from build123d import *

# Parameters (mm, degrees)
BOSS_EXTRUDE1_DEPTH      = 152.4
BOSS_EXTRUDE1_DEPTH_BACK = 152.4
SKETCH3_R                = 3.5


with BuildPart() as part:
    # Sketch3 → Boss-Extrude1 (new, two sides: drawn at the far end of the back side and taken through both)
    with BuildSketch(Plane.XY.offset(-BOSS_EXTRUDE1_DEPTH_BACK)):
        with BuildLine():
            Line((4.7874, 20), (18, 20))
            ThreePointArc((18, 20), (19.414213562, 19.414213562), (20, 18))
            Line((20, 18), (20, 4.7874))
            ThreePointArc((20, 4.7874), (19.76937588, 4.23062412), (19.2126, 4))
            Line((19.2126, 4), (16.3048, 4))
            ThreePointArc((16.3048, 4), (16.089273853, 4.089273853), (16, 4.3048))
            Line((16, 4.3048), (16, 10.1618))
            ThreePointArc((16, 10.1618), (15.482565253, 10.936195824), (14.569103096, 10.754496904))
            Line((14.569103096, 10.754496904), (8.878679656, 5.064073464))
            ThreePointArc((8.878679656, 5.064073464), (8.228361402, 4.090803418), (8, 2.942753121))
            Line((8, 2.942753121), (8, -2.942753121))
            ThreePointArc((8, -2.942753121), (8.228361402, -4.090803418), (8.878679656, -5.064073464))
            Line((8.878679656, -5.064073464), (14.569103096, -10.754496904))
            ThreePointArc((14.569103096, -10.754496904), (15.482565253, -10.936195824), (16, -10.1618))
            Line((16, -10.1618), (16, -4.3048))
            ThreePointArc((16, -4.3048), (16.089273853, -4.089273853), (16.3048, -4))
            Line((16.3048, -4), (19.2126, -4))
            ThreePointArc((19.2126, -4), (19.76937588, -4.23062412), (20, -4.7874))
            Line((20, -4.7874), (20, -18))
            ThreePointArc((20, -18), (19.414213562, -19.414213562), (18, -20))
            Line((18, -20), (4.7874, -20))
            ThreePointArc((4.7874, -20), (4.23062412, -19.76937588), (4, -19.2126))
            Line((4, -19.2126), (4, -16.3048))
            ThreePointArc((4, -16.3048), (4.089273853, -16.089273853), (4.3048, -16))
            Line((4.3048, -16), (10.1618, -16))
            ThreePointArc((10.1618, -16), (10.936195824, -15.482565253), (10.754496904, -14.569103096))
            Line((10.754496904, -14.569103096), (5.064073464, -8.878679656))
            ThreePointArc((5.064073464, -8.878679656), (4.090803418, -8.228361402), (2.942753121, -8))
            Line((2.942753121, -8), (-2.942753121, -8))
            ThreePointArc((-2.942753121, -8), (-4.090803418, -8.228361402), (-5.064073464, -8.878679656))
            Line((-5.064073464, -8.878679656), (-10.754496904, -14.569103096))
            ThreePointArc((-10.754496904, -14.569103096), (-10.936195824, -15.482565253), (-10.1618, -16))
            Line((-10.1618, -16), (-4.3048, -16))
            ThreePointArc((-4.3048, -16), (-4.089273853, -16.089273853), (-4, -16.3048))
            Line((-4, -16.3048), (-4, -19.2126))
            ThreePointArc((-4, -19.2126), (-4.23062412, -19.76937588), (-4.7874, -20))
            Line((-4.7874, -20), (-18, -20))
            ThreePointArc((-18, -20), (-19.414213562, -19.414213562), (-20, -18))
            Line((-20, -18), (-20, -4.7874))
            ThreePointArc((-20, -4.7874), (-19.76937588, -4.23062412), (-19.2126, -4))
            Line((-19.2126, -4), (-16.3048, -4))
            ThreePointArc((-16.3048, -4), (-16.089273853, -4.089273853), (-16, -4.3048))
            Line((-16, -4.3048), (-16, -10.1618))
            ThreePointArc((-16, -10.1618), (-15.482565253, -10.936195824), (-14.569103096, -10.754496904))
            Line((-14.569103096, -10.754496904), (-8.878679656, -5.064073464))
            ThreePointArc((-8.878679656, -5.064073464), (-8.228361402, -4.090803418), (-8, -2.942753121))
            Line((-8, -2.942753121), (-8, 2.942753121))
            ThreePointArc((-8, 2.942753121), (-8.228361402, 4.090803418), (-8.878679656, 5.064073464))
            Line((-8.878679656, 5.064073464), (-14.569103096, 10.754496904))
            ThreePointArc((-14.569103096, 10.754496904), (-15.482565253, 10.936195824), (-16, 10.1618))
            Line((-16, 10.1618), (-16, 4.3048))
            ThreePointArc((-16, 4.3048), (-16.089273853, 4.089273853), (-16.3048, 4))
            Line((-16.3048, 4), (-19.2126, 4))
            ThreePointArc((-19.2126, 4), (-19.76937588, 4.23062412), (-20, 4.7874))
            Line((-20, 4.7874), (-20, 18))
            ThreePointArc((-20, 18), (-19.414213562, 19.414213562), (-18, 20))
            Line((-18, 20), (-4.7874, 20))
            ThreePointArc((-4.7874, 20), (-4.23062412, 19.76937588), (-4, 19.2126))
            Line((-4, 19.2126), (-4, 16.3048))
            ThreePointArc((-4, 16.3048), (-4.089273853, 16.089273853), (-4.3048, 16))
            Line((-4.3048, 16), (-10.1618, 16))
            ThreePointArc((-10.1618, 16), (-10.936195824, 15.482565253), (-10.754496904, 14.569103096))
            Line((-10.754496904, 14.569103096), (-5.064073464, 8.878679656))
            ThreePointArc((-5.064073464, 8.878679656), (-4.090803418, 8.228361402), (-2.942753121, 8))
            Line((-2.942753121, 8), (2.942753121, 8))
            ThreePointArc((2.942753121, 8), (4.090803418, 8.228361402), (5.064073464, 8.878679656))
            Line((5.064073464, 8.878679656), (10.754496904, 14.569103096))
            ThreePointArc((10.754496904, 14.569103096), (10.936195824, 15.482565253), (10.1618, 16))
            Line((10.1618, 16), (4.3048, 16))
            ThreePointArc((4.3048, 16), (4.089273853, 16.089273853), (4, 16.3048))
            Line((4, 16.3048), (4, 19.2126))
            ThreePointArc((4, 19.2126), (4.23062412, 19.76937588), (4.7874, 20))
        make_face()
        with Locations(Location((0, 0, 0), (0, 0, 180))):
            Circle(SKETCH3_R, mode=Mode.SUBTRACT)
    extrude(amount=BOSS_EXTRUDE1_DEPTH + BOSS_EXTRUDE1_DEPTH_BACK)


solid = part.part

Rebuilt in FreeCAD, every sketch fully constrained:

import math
import FreeCAD as App
import Part
import Sketcher

V = App.Vector
Q = App.Units.Quantity

doc = App.newDocument("Part")
body = doc.addObject("PartDesign::Body", "Body")

# Sketch on XY plane
sketch1 = body.newObject("Sketcher::SketchObject", "Sketch")
sketch1.AttachmentSupport = (doc.getObject("XY_Plane"), [""])
sketch1.MapMode = "FlatFace"
sketch1.addGeometry([
    Part.LineSegment(V(18, 20, 0), V(4.7874, 20, 0)),  # 0
    Part.ArcOfCircle(Part.Circle(V(4.7874, 19.2126, 0), V(0, 0, 1), 0.7874), math.radians(90), math.radians(180)),  # 1
    Part.LineSegment(V(4, 19.2126, 0), V(4, 16.3048, 0)),  # 2
    Part.ArcOfCircle(Part.Circle(V(4.3048, 16.3048, 0), V(0, 0, 1), 0.3048), math.radians(180), math.radians(270)),  # 3
    Part.LineSegment(V(4.3048, 16, 0), V(10.1618, 16, 0)),  # 4
    Part.ArcOfCircle(Part.Circle(V(10.1618, 15.1618, 0), V(0, 0, 1), 0.8382), math.radians(-45), math.radians(90)),  # 5
    Part.LineSegment(V(10.754497, 14.569103, 0), V(5.064073, 8.87868, 0)),  # 6
    Part.ArcOfCircle(Part.Circle(V(2.942753, 11, 0), V(0, 0, 1), 3), math.radians(-90), math.radians(-45)),  # 7
    Part.LineSegment(V(2.942753, 8, 0), V(-2.942753, 8, 0)),  # 8
    Part.ArcOfCircle(Part.Circle(V(-2.942753, 11, 0), V(0, 0, 1), 3), math.radians(-135), math.radians(-90)),  # 9
    Part.LineSegment(V(-5.064073, 8.87868, 0), V(-10.754497, 14.569103, 0)),  # 10
    Part.ArcOfCircle(Part.Circle(V(-10.1618, 15.1618, 0), V(0, 0, 1), 0.8382), math.radians(90), math.radians(225)),  # 11
    Part.LineSegment(V(-10.1618, 16, 0), V(-4.3048, 16, 0)),  # 12
    Part.ArcOfCircle(Part.Circle(V(-4.3048, 16.3048, 0), V(0, 0, 1), 0.3048), math.radians(-90), math.radians(0)),  # 13
    Part.LineSegment(V(-4, 16.3048, 0), V(-4, 19.2126, 0)),  # 14
    Part.ArcOfCircle(Part.Circle(V(-4.7874, 19.2126, 0), V(0, 0, 1), 0.7874), math.radians(0), math.radians(90)),  # 15
    Part.LineSegment(V(-4.7874, 20, 0), V(-18, 20, 0)),  # 16
    Part.ArcOfCircle(Part.Circle(V(-18, 18, 0), V(0, 0, 1), 2), math.radians(90), math.radians(180)),  # 17
    Part.LineSegment(V(-20, 18, 0), V(-20, 4.7874, 0)),  # 18
    Part.ArcOfCircle(Part.Circle(V(-19.2126, 4.7874, 0), V(0, 0, 1), 0.7874), math.radians(180), math.radians(270)),  # 19
    Part.LineSegment(V(-19.2126, 4, 0), V(-16.3048, 4, 0)),  # 20
    Part.ArcOfCircle(Part.Circle(V(-16.3048, 4.3048, 0), V(0, 0, 1), 0.3048), math.radians(-90), math.radians(0)),  # 21
    Part.LineSegment(V(-16, 4.3048, 0), V(-16, 10.1618, 0)),  # 22
    Part.ArcOfCircle(Part.Circle(V(-15.1618, 10.1618, 0), V(0, 0, 1), 0.8382), math.radians(45), math.radians(180)),  # 23
    Part.LineSegment(V(-14.569103, 10.754497, 0), V(-8.87868, 5.064073, 0)),  # 24
    Part.ArcOfCircle(Part.Circle(V(-11, 2.942753, 0), V(0, 0, 1), 3), math.radians(0), math.radians(45)),  # 25
    Part.LineSegment(V(-8, 2.942753, 0), V(-8, -2.942753, 0)),  # 26
    Part.ArcOfCircle(Part.Circle(V(-11, -2.942753, 0), V(0, 0, 1), 3), math.radians(-45), math.radians(0)),  # 27
    Part.LineSegment(V(-8.87868, -5.064073, 0), V(-14.569103, -10.754497, 0)),  # 28
    Part.ArcOfCircle(Part.Circle(V(-15.1618, -10.1618, 0), V(0, 0, 1), 0.8382), math.radians(180), math.radians(315)),  # 29
    Part.LineSegment(V(-16, -10.1618, 0), V(-16, -4.3048, 0)),  # 30
    Part.ArcOfCircle(Part.Circle(V(-16.3048, -4.3048, 0), V(0, 0, 1), 0.3048), math.radians(0), math.radians(90)),  # 31
    Part.LineSegment(V(-16.3048, -4, 0), V(-19.2126, -4, 0)),  # 32
    Part.ArcOfCircle(Part.Circle(V(-19.2126, -4.7874, 0), V(0, 0, 1), 0.7874), math.radians(90), math.radians(180)),  # 33
    Part.LineSegment(V(-20, -4.7874, 0), V(-20, -18, 0)),  # 34
    Part.ArcOfCircle(Part.Circle(V(-18, -18, 0), V(0, 0, 1), 2), math.radians(-180), math.radians(-90)),  # 35
    Part.LineSegment(V(-18, -20, 0), V(-4.7874, -20, 0)),  # 36
    Part.ArcOfCircle(Part.Circle(V(-4.7874, -19.2126, 0), V(0, 0, 1), 0.7874), math.radians(-90), math.radians(0)),  # 37
    Part.LineSegment(V(-4, -19.2126, 0), V(-4, -16.3048, 0)),  # 38
    Part.ArcOfCircle(Part.Circle(V(-4.3048, -16.3048, 0), V(0, 0, 1), 0.3048), math.radians(0), math.radians(90)),  # 39
    Part.LineSegment(V(-4.3048, -16, 0), V(-10.1618, -16, 0)),  # 40
    Part.ArcOfCircle(Part.Circle(V(-10.1618, -15.1618, 0), V(0, 0, 1), 0.8382), math.radians(135), math.radians(270)),  # 41
    Part.LineSegment(V(-10.754497, -14.569103, 0), V(-5.064073, -8.87868, 0)),  # 42
    Part.ArcOfCircle(Part.Circle(V(-2.942753, -11, 0), V(0, 0, 1), 3), math.radians(90), math.radians(135)),  # 43
    Part.LineSegment(V(-2.942753, -8, 0), V(2.942753, -8, 0)),  # 44
    Part.ArcOfCircle(Part.Circle(V(2.942753, -11, 0), V(0, 0, 1), 3), math.radians(45), math.radians(90)),  # 45
    Part.LineSegment(V(5.064073, -8.87868, 0), V(10.754497, -14.569103, 0)),  # 46
    Part.ArcOfCircle(Part.Circle(V(10.1618, -15.1618, 0), V(0, 0, 1), 0.8382), math.radians(-90), math.radians(45)),  # 47
    Part.LineSegment(V(10.1618, -16, 0), V(4.3048, -16, 0)),  # 48
    Part.ArcOfCircle(Part.Circle(V(4.3048, -16.3048, 0), V(0, 0, 1), 0.3048), math.radians(90), math.radians(180)),  # 49
    Part.LineSegment(V(4, -16.3048, 0), V(4, -19.2126, 0)),  # 50
    Part.ArcOfCircle(Part.Circle(V(4.7874, -19.2126, 0), V(0, 0, 1), 0.7874), math.radians(180), math.radians(270)),  # 51
    Part.LineSegment(V(4.7874, -20, 0), V(18, -20, 0)),  # 52
    Part.ArcOfCircle(Part.Circle(V(18, -18, 0), V(0, 0, 1), 2), math.radians(-90), math.radians(0)),  # 53
    Part.LineSegment(V(20, -18, 0), V(20, -4.7874, 0)),  # 54
    Part.ArcOfCircle(Part.Circle(V(19.2126, -4.7874, 0), V(0, 0, 1), 0.7874), math.radians(0), math.radians(90)),  # 55
    Part.LineSegment(V(19.2126, -4, 0), V(16.3048, -4, 0)),  # 56
    Part.ArcOfCircle(Part.Circle(V(16.3048, -4.3048, 0), V(0, 0, 1), 0.3048), math.radians(90), math.radians(180)),  # 57
    Part.LineSegment(V(16, -4.3048, 0), V(16, -10.1618, 0)),  # 58
    Part.ArcOfCircle(Part.Circle(V(15.1618, -10.1618, 0), V(0, 0, 1), 0.8382), math.radians(-135), math.radians(0)),  # 59
    Part.LineSegment(V(14.569103, -10.754497, 0), V(8.87868, -5.064073, 0)),  # 60
    Part.ArcOfCircle(Part.Circle(V(11, -2.942753, 0), V(0, 0, 1), 3), math.radians(180), math.radians(225)),  # 61
    Part.LineSegment(V(8, -2.942753, 0), V(8, 2.942753, 0)),  # 62
    Part.ArcOfCircle(Part.Circle(V(11, 2.942753, 0), V(0, 0, 1), 3), math.radians(135), math.radians(180)),  # 63
    Part.LineSegment(V(8.87868, 5.064073, 0), V(14.569103, 10.754497, 0)),  # 64
    Part.ArcOfCircle(Part.Circle(V(15.1618, 10.1618, 0), V(0, 0, 1), 0.8382), math.radians(0), math.radians(135)),  # 65
    Part.LineSegment(V(16, 10.1618, 0), V(16, 4.3048, 0)),  # 66
    Part.ArcOfCircle(Part.Circle(V(16.3048, 4.3048, 0), V(0, 0, 1), 0.3048), math.radians(180), math.radians(270)),  # 67
    Part.LineSegment(V(16.3048, 4, 0), V(19.2126, 4, 0)),  # 68
    Part.ArcOfCircle(Part.Circle(V(19.2126, 4.7874, 0), V(0, 0, 1), 0.7874), math.radians(-90), math.radians(0)),  # 69
    Part.LineSegment(V(20, 4.7874, 0), V(20, 18, 0)),  # 70
    Part.ArcOfCircle(Part.Circle(V(18, 18, 0), V(0, 0, 1), 2), math.radians(0), math.radians(90)),  # 71
    Part.Circle(V(0, 0, 0), V(0, 0, 1), 3.5),  # 72
], False)
sketch1.addConstraint([
    Sketcher.Constraint("Tangent", 0, 2, 1, 1),
    Sketcher.Constraint("Tangent", 1, 2, 2, 1),
    Sketcher.Constraint("Tangent", 2, 2, 3, 1),
    Sketcher.Constraint("Tangent", 3, 2, 4, 1),
    Sketcher.Constraint("Tangent", 4, 2, 5, 2),
    Sketcher.Constraint("Tangent", 5, 1, 6, 1),
    Sketcher.Constraint("Tangent", 6, 2, 7, 2),
    Sketcher.Constraint("Tangent", 7, 1, 8, 1),
    Sketcher.Constraint("Tangent", 8, 2, 9, 2),
    Sketcher.Constraint("Tangent", 9, 1, 10, 1),
    Sketcher.Constraint("Tangent", 10, 2, 11, 2),
    Sketcher.Constraint("Tangent", 11, 1, 12, 1),
    Sketcher.Constraint("Tangent", 12, 2, 13, 1),
    Sketcher.Constraint("Tangent", 13, 2, 14, 1),
    Sketcher.Constraint("Tangent", 14, 2, 15, 1),
    Sketcher.Constraint("Tangent", 15, 2, 16, 1),
    Sketcher.Constraint("Tangent", 16, 2, 17, 1),
    Sketcher.Constraint("Tangent", 17, 2, 18, 1),
    Sketcher.Constraint("Tangent", 18, 2, 19, 1),
    Sketcher.Constraint("Tangent", 19, 2, 20, 1),
    Sketcher.Constraint("Tangent", 20, 2, 21, 1),
    Sketcher.Constraint("Tangent", 21, 2, 22, 1),
    Sketcher.Constraint("Tangent", 22, 2, 23, 2),
    Sketcher.Constraint("Tangent", 23, 1, 24, 1),
    Sketcher.Constraint("Tangent", 24, 2, 25, 2),
    Sketcher.Constraint("Tangent", 25, 1, 26, 1),
    Sketcher.Constraint("Tangent", 26, 2, 27, 2),
    Sketcher.Constraint("Tangent", 27, 1, 28, 1),
    Sketcher.Constraint("Tangent", 28, 2, 29, 2),
    Sketcher.Constraint("Tangent", 29, 1, 30, 1),
    Sketcher.Constraint("Tangent", 30, 2, 31, 1),
    Sketcher.Constraint("Tangent", 31, 2, 32, 1),
    Sketcher.Constraint("Tangent", 32, 2, 33, 1),
    Sketcher.Constraint("Tangent", 33, 2, 34, 1),
    Sketcher.Constraint("Tangent", 34, 2, 35, 1),
    Sketcher.Constraint("Tangent", 35, 2, 36, 1),
    Sketcher.Constraint("Tangent", 36, 2, 37, 1),
    Sketcher.Constraint("Tangent", 37, 2, 38, 1),
    Sketcher.Constraint("Tangent", 38, 2, 39, 1),
    Sketcher.Constraint("Tangent", 39, 2, 40, 1),
    Sketcher.Constraint("Tangent", 40, 2, 41, 2),
    Sketcher.Constraint("Tangent", 41, 1, 42, 1),
    Sketcher.Constraint("Tangent", 42, 2, 43, 2),
    Sketcher.Constraint("Tangent", 43, 1, 44, 1),
    Sketcher.Constraint("Tangent", 44, 2, 45, 2),
    Sketcher.Constraint("Tangent", 45, 1, 46, 1),
    Sketcher.Constraint("Tangent", 46, 2, 47, 2),
    Sketcher.Constraint("Tangent", 47, 1, 48, 1),
    Sketcher.Constraint("Tangent", 48, 2, 49, 1),
    Sketcher.Constraint("Tangent", 49, 2, 50, 1),
    Sketcher.Constraint("Tangent", 50, 2, 51, 1),
    Sketcher.Constraint("Tangent", 51, 2, 52, 1),
    Sketcher.Constraint("Tangent", 52, 2, 53, 1),
    Sketcher.Constraint("Tangent", 53, 2, 54, 1),
    Sketcher.Constraint("Tangent", 54, 2, 55, 1),
    Sketcher.Constraint("Tangent", 55, 2, 56, 1),
    Sketcher.Constraint("Tangent", 56, 2, 57, 1),
    Sketcher.Constraint("Tangent", 57, 2, 58, 1),
    Sketcher.Constraint("Tangent", 58, 2, 59, 2),
    Sketcher.Constraint("Tangent", 59, 1, 60, 1),
    Sketcher.Constraint("Tangent", 60, 2, 61, 2),
    Sketcher.Constraint("Tangent", 61, 1, 62, 1),
    Sketcher.Constraint("Tangent", 62, 2, 63, 2),
    Sketcher.Constraint("Tangent", 63, 1, 64, 1),
    Sketcher.Constraint("Tangent", 64, 2, 65, 2),
    Sketcher.Constraint("Tangent", 65, 1, 66, 1),
    Sketcher.Constraint("Tangent", 66, 2, 67, 1),
    Sketcher.Constraint("Tangent", 67, 2, 68, 1),
    Sketcher.Constraint("Tangent", 68, 2, 69, 1),
    Sketcher.Constraint("Tangent", 69, 2, 70, 1),
    Sketcher.Constraint("Tangent", 70, 2, 71, 1),
    Sketcher.Constraint("Tangent", 71, 2, 0, 1),
    Sketcher.Constraint("Horizontal", 0),
    Sketcher.Constraint("Vertical", 2),
    Sketcher.Constraint("Horizontal", 4),
    Sketcher.Constraint("Horizontal", 8),
    Sketcher.Constraint("Horizontal", 12),
    Sketcher.Constraint("Vertical", 14),
    Sketcher.Constraint("Horizontal", 16),
    Sketcher.Constraint("Vertical", 18),
    Sketcher.Constraint("Horizontal", 20),
    Sketcher.Constraint("Vertical", 22),
    Sketcher.Constraint("Vertical", 26),
    Sketcher.Constraint("Vertical", 30),
    Sketcher.Constraint("Horizontal", 32),
    Sketcher.Constraint("Vertical", 34),
    Sketcher.Constraint("Horizontal", 36),
    Sketcher.Constraint("Vertical", 38),
    Sketcher.Constraint("Horizontal", 40),
    Sketcher.Constraint("Horizontal", 44),
    Sketcher.Constraint("Horizontal", 48),
    Sketcher.Constraint("Vertical", 50),
    Sketcher.Constraint("Horizontal", 52),
    Sketcher.Constraint("Vertical", 54),
    Sketcher.Constraint("Horizontal", 56),
    Sketcher.Constraint("Vertical", 58),
    Sketcher.Constraint("Vertical", 62),
    Sketcher.Constraint("Vertical", 66),
    Sketcher.Constraint("Horizontal", 68),
    Sketcher.Constraint("Vertical", 70),
    Sketcher.Constraint("Coincident", 72, 3, -1, 1),
    Sketcher.Constraint("Equal", 7, 9),
    Sketcher.Constraint("Equal", 5, 11),
    Sketcher.Constraint("Equal", 3, 13),
    Sketcher.Constraint("Equal", 1, 15),
    Sketcher.Constraint("Equal", 15, 19),
    Sketcher.Constraint("Equal", 13, 21),
    Sketcher.Constraint("Equal", 11, 23),
    Sketcher.Constraint("Equal", 9, 25),
    Sketcher.Constraint("Equal", 25, 27),
    Sketcher.Constraint("Equal", 23, 29),
    Sketcher.Constraint("Equal", 21, 31),
    Sketcher.Constraint("Equal", 19, 33),
    Sketcher.Constraint("Equal", 17, 35),
    Sketcher.Constraint("Equal", 33, 37),
    Sketcher.Constraint("Equal", 31, 39),
    Sketcher.Constraint("Equal", 29, 41),
    Sketcher.Constraint("Equal", 27, 43),
    Sketcher.Constraint("Equal", 43, 45),
    Sketcher.Constraint("Equal", 41, 47),
    Sketcher.Constraint("Equal", 39, 49),
    Sketcher.Constraint("Equal", 37, 51),
    Sketcher.Constraint("Equal", 35, 53),
    Sketcher.Constraint("Equal", 51, 55),
    Sketcher.Constraint("Equal", 49, 57),
    Sketcher.Constraint("Equal", 47, 59),
    Sketcher.Constraint("Equal", 45, 61),
    Sketcher.Constraint("Equal", 61, 63),
    Sketcher.Constraint("Equal", 59, 65),
    Sketcher.Constraint("Equal", 57, 67),
    Sketcher.Constraint("Equal", 55, 69),
    Sketcher.Constraint("Equal", 53, 71),
    Sketcher.Constraint("Symmetric", 1, 3, 37, 3, -1, 1),
    Sketcher.Constraint("Symmetric", 5, 3, 41, 3, -1, 1),
    Sketcher.Constraint("Symmetric", 7, 3, 43, 3, -1, 1),
    Sketcher.Constraint("Symmetric", 11, 3, 47, 3, -1, 1),
    Sketcher.Constraint("Symmetric", 15, 3, 51, 3, -1, 1),
    Sketcher.Constraint("Symmetric", 19, 3, 55, 3, -1, 1),
    Sketcher.Constraint("Symmetric", 23, 3, 59, 3, -1, 1),
    Sketcher.Constraint("Symmetric", 25, 3, 61, 3, -1, 1),
    Sketcher.Constraint("Symmetric", 29, 3, 65, 3, -1, 1),
    Sketcher.Constraint("Symmetric", 33, 3, 69, 3, -1, 1),
    Sketcher.Constraint("Symmetric", 5, 3, 11, 3, -2),
    Sketcher.Constraint("Symmetric", 1, 3, 15, 3, -2),
    Sketcher.Constraint("Symmetric", 33, 3, 55, 3, -2),
    Sketcher.Constraint("Symmetric", 29, 3, 59, 3, -2),
    Sketcher.Constraint("Perpendicular", 6, 10),
    Sketcher.Constraint("Parallel", 10, 24),
    Sketcher.Constraint("Perpendicular", 24, 28),
    Sketcher.Constraint("Perpendicular", 42, 46),
    Sketcher.Constraint("Perpendicular", 60, 64),
    Sketcher.Constraint("Horizontal", 27, 3, 61, 3),
    Sketcher.Constraint("Equal", 68, 2),
    Sketcher.Constraint("Equal", 52, 18),
    Sketcher.Constraint("Equal", 48, 22),
    Sketcher.Constraint("Equal", 44, 26),
    Sketcher.Constraint("Equal", 10, 24),
    Sketcher.Constraint("Radius", 1, Q("0.031 in")),
    Sketcher.Constraint("Radius", 3, Q("0.012 in")),
    Sketcher.Constraint("Radius", 5, Q("0.033 in")),
    Sketcher.Constraint("Diameter", 72, Q("7 mm")),
    Sketcher.Constraint("Radius", 7, Q("3 mm")),
    Sketcher.Constraint("Radius", 17, Q("2 mm")),
    Sketcher.Constraint("DistanceX", 0, 2, 0, 1, Q("13.2126 mm")),
    Sketcher.Constraint("DistanceX", 4, 1, 4, 2, Q("5.857 mm")),
    Sketcher.Constraint("DistanceX", 20, 1, 20, 2, Q("2.9078 mm")),
    Sketcher.Constraint("DistanceX", -1, 1, 1, 3, Q("4.7874 mm")),
    Sketcher.Constraint("DistanceY", -1, 1, 7, 3, Q("11 mm")),
])
pad1 = body.newObject("PartDesign::Pad", "Pad")
pad1.Profile = sketch1
pad1.Type = "TwoLengths"
pad1.Length = Q("6 in")
pad1.Length2 = Q("6 in")

doc.recompute()
